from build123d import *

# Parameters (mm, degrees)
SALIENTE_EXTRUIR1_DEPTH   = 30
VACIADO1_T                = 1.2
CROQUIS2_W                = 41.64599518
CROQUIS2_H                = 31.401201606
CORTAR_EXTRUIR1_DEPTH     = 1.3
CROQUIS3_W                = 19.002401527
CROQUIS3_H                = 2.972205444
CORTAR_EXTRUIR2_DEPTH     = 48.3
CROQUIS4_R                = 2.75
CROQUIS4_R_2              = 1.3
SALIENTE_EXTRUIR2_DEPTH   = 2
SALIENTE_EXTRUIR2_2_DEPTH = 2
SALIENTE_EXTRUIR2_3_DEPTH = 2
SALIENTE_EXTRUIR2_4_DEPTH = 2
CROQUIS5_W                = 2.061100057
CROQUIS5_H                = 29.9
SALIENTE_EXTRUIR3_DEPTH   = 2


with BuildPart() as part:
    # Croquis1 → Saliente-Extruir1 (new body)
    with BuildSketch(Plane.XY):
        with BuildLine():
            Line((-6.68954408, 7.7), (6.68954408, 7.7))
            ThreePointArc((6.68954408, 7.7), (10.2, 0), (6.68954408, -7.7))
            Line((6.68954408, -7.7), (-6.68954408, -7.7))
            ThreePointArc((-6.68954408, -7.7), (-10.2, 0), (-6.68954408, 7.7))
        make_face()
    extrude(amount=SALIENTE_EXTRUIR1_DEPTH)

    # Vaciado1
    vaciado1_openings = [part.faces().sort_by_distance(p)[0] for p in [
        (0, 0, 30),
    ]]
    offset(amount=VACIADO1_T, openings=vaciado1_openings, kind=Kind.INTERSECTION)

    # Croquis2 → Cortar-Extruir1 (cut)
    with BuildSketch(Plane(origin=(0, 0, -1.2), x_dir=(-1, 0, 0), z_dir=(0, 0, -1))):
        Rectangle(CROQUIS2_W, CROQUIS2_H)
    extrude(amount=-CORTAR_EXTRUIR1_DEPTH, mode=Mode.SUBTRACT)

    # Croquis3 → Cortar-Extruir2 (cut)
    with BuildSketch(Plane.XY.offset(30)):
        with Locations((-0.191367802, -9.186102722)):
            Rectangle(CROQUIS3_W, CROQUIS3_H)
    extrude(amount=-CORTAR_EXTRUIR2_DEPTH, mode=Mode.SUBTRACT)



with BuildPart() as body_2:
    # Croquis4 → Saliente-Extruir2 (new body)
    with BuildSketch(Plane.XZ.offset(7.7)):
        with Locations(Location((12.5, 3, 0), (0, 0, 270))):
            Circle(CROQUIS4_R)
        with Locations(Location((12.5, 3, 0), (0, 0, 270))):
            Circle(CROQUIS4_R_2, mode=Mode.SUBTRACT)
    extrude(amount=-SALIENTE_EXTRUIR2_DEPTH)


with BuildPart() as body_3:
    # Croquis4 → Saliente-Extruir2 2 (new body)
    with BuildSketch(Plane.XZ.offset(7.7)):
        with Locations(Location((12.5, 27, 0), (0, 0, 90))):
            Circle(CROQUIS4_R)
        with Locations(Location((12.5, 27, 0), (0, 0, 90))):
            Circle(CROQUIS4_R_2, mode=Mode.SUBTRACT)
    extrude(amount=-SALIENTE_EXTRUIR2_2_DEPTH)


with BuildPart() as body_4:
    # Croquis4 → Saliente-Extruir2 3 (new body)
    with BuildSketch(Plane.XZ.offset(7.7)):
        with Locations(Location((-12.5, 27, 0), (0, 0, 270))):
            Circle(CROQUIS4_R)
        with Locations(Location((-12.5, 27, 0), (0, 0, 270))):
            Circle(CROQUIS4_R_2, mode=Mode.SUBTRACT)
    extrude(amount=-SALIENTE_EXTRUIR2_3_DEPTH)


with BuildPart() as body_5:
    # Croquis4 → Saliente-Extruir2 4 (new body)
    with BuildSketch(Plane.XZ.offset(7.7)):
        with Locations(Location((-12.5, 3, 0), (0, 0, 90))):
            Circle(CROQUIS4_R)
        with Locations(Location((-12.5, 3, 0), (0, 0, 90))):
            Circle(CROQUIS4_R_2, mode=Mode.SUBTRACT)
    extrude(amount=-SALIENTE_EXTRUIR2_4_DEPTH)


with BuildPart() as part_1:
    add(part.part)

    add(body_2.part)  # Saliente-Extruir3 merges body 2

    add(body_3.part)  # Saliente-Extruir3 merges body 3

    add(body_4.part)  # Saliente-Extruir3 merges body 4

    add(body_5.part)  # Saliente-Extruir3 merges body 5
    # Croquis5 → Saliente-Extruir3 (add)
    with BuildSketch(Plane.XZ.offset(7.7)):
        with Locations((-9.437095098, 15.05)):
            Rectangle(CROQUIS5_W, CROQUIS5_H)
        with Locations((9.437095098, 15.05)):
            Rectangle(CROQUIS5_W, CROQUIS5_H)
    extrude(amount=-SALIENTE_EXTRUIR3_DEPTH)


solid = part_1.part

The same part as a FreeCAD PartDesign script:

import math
import FreeCAD as App
import Part
import Sketcher
from FreeCAD import Vector


def faces_at(feature, points):
    """Names of the faces that lie closest to the given points."""
    faces = feature.Shape.Faces
    near = lambda p: min(range(len(faces)), key=lambda i: faces[i].distToShape(Part.Vertex(*p))[0])
    return sorted({f"Face{near(p) + 1}" for p in points})


def add_polygon(sketch, points):
    """Adds a closed chain of lines whose ends are joined by coincident constraints."""
    first, n = sketch.GeometryCount, len(points)
    for a, b in zip(points, points[1:] + points[:1]):
        sketch.addGeometry(Part.LineSegment(App.Vector(*a, 0), App.Vector(*b, 0)), False)
    for i in range(n):
        sketch.addConstraint(Sketcher.Constraint("Coincident", first + i, 2, first + (i + 1) % n, 1))

doc = App.newDocument("Part")
params = doc.addObject("Spreadsheet::Sheet", "Params")
for row, (alias, value) in enumerate([
    ("sketch1_radius", "10.2 mm"),
    ("pad1_length", "30 mm"),
    ("thickness_wall", "1.2 mm"),
    ("pocket1_length", "1.3 mm"),
    ("pocket2_length", "48.3 mm"),
    ("sketch4_diameter", "5.5 mm"),
    ("sketch4_diameter2", "2.6 mm"),
    ("pad2_length", "2 mm"),
    ("sketch5_diameter", "5.5 mm"),
    ("sketch5_diameter2", "2.6 mm"),
    ("pad3_length", "2 mm"),
    ("sketch6_diameter", "5.5 mm"),
    ("sketch6_diameter2", "2.6 mm"),
    ("pad4_length", "2 mm"),
    ("sketch7_diameter", "5.5 mm"),
    ("sketch7_diameter2", "2.6 mm"),
    ("pad5_length", "2 mm"),
    ("sketch8_height", "29.9 mm"),
    ("pad6_length", "2 mm"),
], start=1):
    params.set(f"A{row}", alias)
    params.set(f"B{row}", "=" + value)
    params.setAlias(f"B{row}", alias)

body = doc.addObject("PartDesign::Body", "Body")

sketch1 = body.newObject("Sketcher::SketchObject", "Sketch")
sketch1.AttachmentSupport = (doc.getObject("XY_Plane"), [""])
sketch1.MapMode = "FlatFace"
sketch1.addGeometry([
    Part.LineSegment(Vector(7, 8, 0), Vector(-7, 8, 0)),
    Part.ArcOfCircle(Part.Circle(Vector(0, 0, 0), Vector(0, 0, 1), 10), math.radians(131), math.radians(229)),
    Part.LineSegment(Vector(-7, -8, 0), Vector(7, -8, 0)),
    Part.ArcOfCircle(Part.Circle(Vector(0, 0, 0), Vector(0, 0, 1), 10), math.radians(-49), math.radians(49)),
], False)
sketch1.addConstraint([
    Sketcher.Constraint("Coincident", 0, 2, 1, 1),
    Sketcher.Constraint("Coincident", 1, 2, 2, 1),
    Sketcher.Constraint("Coincident", 2, 2, 3, 1),
    Sketcher.Constraint("Coincident", 3, 2, 0, 1),
    Sketcher.Constraint("Horizontal", 0),
    Sketcher.Constraint("Horizontal", 2),
    Sketcher.Constraint("Coincident", 1, 3, -1, 1),
    Sketcher.Constraint("Coincident", 3, 3, -1, 1),
    Sketcher.Constraint("Equal", 1, 3),
    Sketcher.Constraint("Vertical", 0, 2, 1, 2),
    Sketcher.Constraint("Radius", 1, 10.2),
    Sketcher.Constraint("DistanceY", -1, 1, 0, 2, 7.7),
])
sketch1.setExpression("Constraints[10]", "Params.sketch1_radius")
pad1 = body.newObject("PartDesign::Pad", "Pad")
pad1.Profile = sketch1
pad1.setExpression("Length", "Params.pad1_length")
doc.recompute()

thickness = body.newObject("PartDesign::Thickness", "Thickness")
thickness.Base = (pad1, faces_at(pad1, [(0, 0, 30)]))
thickness.setExpression("Value", "Params.thickness_wall")
thickness.Reversed = False
thickness.Join = "Intersection"

sketch2 = body.newObject("Sketcher::SketchObject", "Sketch001")
sketch2.AttachmentSupport = (doc.getObject("XY_Plane"), [""])
sketch2.MapMode = "FlatFace"
sketch2.AttachmentOffset = App.Placement(Vector(0, 0, -1.2), App.Rotation())
add_polygon(sketch2, [(21, 16), (21, -16), (-21, -16), (-21, 16)])
sketch2.addConstraint([
    Sketcher.Constraint("Vertical", 0),
    Sketcher.Constraint("Horizontal", 1),
    Sketcher.Constraint("Vertical", 2),
    Sketcher.Constraint("Horizontal", 3),
    Sketcher.Constraint("Symmetric", 0, 2, 2, 2, -1, 1),
    Sketcher.Constraint("DistanceY", 0, 2, 0, 1, 31.401202),
    Sketcher.Constraint("DistanceX", 1, 2, 1, 1, 41.645995),
])
pocket1 = body.newObject("PartDesign::Pocket", "Pocket")
pocket1.Profile = sketch2
pocket1.setExpression("Length", "Params.pocket1_length")
pocket1.Reversed = True

sketch3 = body.newObject("Sketcher::SketchObject", "Sketch002")
sketch3.AttachmentSupport = (doc.getObject("XY_Plane"), [""])
sketch3.MapMode = "FlatFace"
sketch3.AttachmentOffset = App.Placement(Vector(0, 0, 30), App.Rotation())
add_polygon(sketch3, [(-9.7, -7.7), (-9.7, -10.7), (9.3, -10.7), (9.3, -7.7)])
sketch3.addConstraint([
    Sketcher.Constraint("Vertical", 0),
    Sketcher.Constraint("Horizontal", 1),
    Sketcher.Constraint("Vertical", 2),
    Sketcher.Constraint("Horizontal", 3),
    Sketcher.Constraint("DistanceY", 2, 2, -1, 1, 7.7),
    Sketcher.Constraint("DistanceX", 1, 1, 1, 2, 19.002402),
    Sketcher.Constraint("DistanceY", 0, 2, 0, 1, 2.972205),
    Sketcher.Constraint("DistanceX", 0, 2, -1, 1, 9.692569),
])
pocket2 = body.newObject("PartDesign::Pocket", "Pocket001")
pocket2.Profile = sketch3
pocket2.setExpression("Length", "Params.pocket2_length")
body2 = doc.addObject("PartDesign::Body", "Body001")

sketch4 = body2.newObject("Sketcher::SketchObject", "Sketch003")
sketch4.AttachmentSupport = (doc.getObject("XZ_Plane001"), [""])
sketch4.MapMode = "FlatFace"
sketch4.AttachmentOffset = App.Placement(Vector(0, 0, 7.7), App.Rotation())
sketch4.addGeometry([
    Part.Circle(Vector(12.5, 3, 0), Vector(0, 0, 1), 2.8),
    Part.Circle(Vector(12.5, 3, 0), Vector(0, 0, 1), 1.3),
], False)
sketch4.addConstraint([
    Sketcher.Constraint("Coincident", 1, 3, 0, 3),
    Sketcher.Constraint("Diameter", 0, 5.5),
    Sketcher.Constraint("Diameter", 1, 2.6),
    Sketcher.Constraint("DistanceY", -1, 1, 0, 3, 3.0),
    Sketcher.Constraint("DistanceX", -1, 1, 0, 3, 12.5),
])
sketch4.setExpression("Constraints[1]", "Params.sketch4_diameter")
sketch4.setExpression("Constraints[2]", "Params.sketch4_diameter2")
pad2 = body2.newObject("PartDesign::Pad", "Pad001")
pad2.Profile = sketch4
pad2.setExpression("Length", "Params.pad2_length")
pad2.Reversed = True
body3 = doc.addObject("PartDesign::Body", "Body002")

sketch5 = body3.newObject("Sketcher::SketchObject", "Sketch004")
sketch5.AttachmentSupport = (doc.getObject("XZ_Plane002"), [""])
sketch5.MapMode = "FlatFace"
sketch5.AttachmentOffset = App.Placement(Vector(0, 0, 7.7), App.Rotation())
sketch5.addGeometry([
    Part.Circle(Vector(12.5, 27, 0), Vector(0, 0, 1), 2.8),
    Part.Circle(Vector(12.5, 27, 0), Vector(0, 0, 1), 1.3),
], False)
sketch5.addConstraint([
    Sketcher.Constraint("Coincident", 1, 3, 0, 3),
    Sketcher.Constraint("Diameter", 0, 5.5),
    Sketcher.Constraint("Diameter", 1, 2.6),
    Sketcher.Constraint("DistanceY", -1, 1, 0, 3, 27.0),
    Sketcher.Constraint("DistanceX", -1, 1, 0, 3, 12.5),
])
sketch5.setExpression("Constraints[1]", "Params.sketch5_diameter")
sketch5.setExpression("Constraints[2]", "Params.sketch5_diameter2")
pad3 = body3.newObject("PartDesign::Pad", "Pad002")
pad3.Profile = sketch5
pad3.setExpression("Length", "Params.pad3_length")
pad3.Reversed = True
body4 = doc.addObject("PartDesign::Body", "Body003")

sketch6 = body4.newObject("Sketcher::SketchObject", "Sketch005")
sketch6.AttachmentSupport = (doc.getObject("XZ_Plane003"), [""])
sketch6.MapMode = "FlatFace"
sketch6.AttachmentOffset = App.Placement(Vector(0, 0, 7.7), App.Rotation())
sketch6.addGeometry([
    Part.Circle(Vector(-12.5, 27, 0), Vector(0, 0, 1), 2.8),
    Part.Circle(Vector(-12.5, 27, 0), Vector(0, 0, 1), 1.3),
], False)
sketch6.addConstraint([
    Sketcher.Constraint("Coincident", 1, 3, 0, 3),
    Sketcher.Constraint("Diameter", 0, 5.5),
    Sketcher.Constraint("Diameter", 1, 2.6),
    Sketcher.Constraint("DistanceY", -1, 1, 0, 3, 27.0),
    Sketcher.Constraint("DistanceX", 0, 3, -1, 1, 12.5),
])
sketch6.setExpression("Constraints[1]", "Params.sketch6_diameter")
sketch6.setExpression("Constraints[2]", "Params.sketch6_diameter2")
pad4 = body4.newObject("PartDesign::Pad", "Pad003")
pad4.Profile = sketch6
pad4.setExpression("Length", "Params.pad4_length")
pad4.Reversed = True
body5 = doc.addObject("PartDesign::Body", "Body004")

sketch7 = body5.newObject("Sketcher::SketchObject", "Sketch006")
sketch7.AttachmentSupport = (doc.getObject("XZ_Plane004"), [""])
sketch7.MapMode = "FlatFace"
sketch7.AttachmentOffset = App.Placement(Vector(0, 0, 7.7), App.Rotation())
sketch7.addGeometry([
    Part.Circle(Vector(-12.5, 3, 0), Vector(0, 0, 1), 2.8),
    Part.Circle(Vector(-12.5, 3, 0), Vector(0, 0, 1), 1.3),
], False)
sketch7.addConstraint([
    Sketcher.Constraint("Coincident", 1, 3, 0, 3),
    Sketcher.Constraint("Diameter", 0, 5.5),
    Sketcher.Constraint("Diameter", 1, 2.6),
    Sketcher.Constraint("DistanceY", -1, 1, 0, 3, 3.0),
    Sketcher.Constraint("DistanceX", 0, 3, -1, 1, 12.5),
])
sketch7.setExpression("Constraints[1]", "Params.sketch7_diameter")
sketch7.setExpression("Constraints[2]", "Params.sketch7_diameter2")
pad5 = body5.newObject("PartDesign::Pad", "Pad004")
pad5.Profile = sketch7
pad5.setExpression("Length", "Params.pad5_length")
pad5.Reversed = True
doc.recompute()

boolean = body.newObject("PartDesign::Boolean", "Boolean")
boolean.Type = "Fuse"
boolean.addObjects([body2])
doc.recompute()

boolean2 = body.newObject("PartDesign::Boolean", "Boolean001")
boolean2.Type = "Fuse"
boolean2.addObjects([body3])
doc.recompute()

boolean3 = body.newObject("PartDesign::Boolean", "Boolean002")
boolean3.Type = "Fuse"
boolean3.addObjects([body4])
doc.recompute()

boolean4 = body.newObject("PartDesign::Boolean", "Boolean003")
boolean4.Type = "Fuse"
boolean4.addObjects([body5])

sketch8 = body.newObject("Sketcher::SketchObject", "Sketch007")
sketch8.AttachmentSupport = (doc.getObject("XZ_Plane"), [""])
sketch8.MapMode = "FlatFace"
sketch8.AttachmentOffset = App.Placement(Vector(0, 0, 7.7), App.Rotation())
add_polygon(sketch8, [(-10.5, 30), (-10.5, 0.1), (-8.4, 0.1), (-8.4, 30)])
add_polygon(sketch8, [(8.4, 30), (8.4, 0.1), (10.5, 0.1), (10.5, 30)])
sketch8.addConstraint([
    Sketcher.Constraint("Vertical", 0),
    Sketcher.Constraint("Horizontal", 1),
    Sketcher.Constraint("Vertical", 2),
    Sketcher.Constraint("Horizontal", 3),
    Sketcher.Constraint("Vertical", 4),
    Sketcher.Constraint("Horizontal", 5),
    Sketcher.Constraint("Vertical", 6),
    Sketcher.Constraint("Horizontal", 7),
    Sketcher.Constraint("Symmetric", 1, 2, 4, 2, -2),
    Sketcher.Constraint("Symmetric", 3, 2, 6, 2, -2),
    Sketcher.Constraint("DistanceY", 0, 2, 0, 1, 29.9),
    Sketcher.Constraint("DistanceY", -1, 1, 2, 2, 30.0),
    Sketcher.Constraint("DistanceX", 1, 1, 1, 2, 2.0611),
    Sketcher.Constraint("DistanceX", 1, 2, 4, 2, 16.81309),
])
sketch8.setExpression("Constraints[18]", "Params.sketch8_height")
pad6 = body.newObject("PartDesign::Pad", "Pad005")
pad6.Profile = sketch8
pad6.setExpression("Length", "Params.pad6_length")
pad6.Reversed = True

doc.recompute()
